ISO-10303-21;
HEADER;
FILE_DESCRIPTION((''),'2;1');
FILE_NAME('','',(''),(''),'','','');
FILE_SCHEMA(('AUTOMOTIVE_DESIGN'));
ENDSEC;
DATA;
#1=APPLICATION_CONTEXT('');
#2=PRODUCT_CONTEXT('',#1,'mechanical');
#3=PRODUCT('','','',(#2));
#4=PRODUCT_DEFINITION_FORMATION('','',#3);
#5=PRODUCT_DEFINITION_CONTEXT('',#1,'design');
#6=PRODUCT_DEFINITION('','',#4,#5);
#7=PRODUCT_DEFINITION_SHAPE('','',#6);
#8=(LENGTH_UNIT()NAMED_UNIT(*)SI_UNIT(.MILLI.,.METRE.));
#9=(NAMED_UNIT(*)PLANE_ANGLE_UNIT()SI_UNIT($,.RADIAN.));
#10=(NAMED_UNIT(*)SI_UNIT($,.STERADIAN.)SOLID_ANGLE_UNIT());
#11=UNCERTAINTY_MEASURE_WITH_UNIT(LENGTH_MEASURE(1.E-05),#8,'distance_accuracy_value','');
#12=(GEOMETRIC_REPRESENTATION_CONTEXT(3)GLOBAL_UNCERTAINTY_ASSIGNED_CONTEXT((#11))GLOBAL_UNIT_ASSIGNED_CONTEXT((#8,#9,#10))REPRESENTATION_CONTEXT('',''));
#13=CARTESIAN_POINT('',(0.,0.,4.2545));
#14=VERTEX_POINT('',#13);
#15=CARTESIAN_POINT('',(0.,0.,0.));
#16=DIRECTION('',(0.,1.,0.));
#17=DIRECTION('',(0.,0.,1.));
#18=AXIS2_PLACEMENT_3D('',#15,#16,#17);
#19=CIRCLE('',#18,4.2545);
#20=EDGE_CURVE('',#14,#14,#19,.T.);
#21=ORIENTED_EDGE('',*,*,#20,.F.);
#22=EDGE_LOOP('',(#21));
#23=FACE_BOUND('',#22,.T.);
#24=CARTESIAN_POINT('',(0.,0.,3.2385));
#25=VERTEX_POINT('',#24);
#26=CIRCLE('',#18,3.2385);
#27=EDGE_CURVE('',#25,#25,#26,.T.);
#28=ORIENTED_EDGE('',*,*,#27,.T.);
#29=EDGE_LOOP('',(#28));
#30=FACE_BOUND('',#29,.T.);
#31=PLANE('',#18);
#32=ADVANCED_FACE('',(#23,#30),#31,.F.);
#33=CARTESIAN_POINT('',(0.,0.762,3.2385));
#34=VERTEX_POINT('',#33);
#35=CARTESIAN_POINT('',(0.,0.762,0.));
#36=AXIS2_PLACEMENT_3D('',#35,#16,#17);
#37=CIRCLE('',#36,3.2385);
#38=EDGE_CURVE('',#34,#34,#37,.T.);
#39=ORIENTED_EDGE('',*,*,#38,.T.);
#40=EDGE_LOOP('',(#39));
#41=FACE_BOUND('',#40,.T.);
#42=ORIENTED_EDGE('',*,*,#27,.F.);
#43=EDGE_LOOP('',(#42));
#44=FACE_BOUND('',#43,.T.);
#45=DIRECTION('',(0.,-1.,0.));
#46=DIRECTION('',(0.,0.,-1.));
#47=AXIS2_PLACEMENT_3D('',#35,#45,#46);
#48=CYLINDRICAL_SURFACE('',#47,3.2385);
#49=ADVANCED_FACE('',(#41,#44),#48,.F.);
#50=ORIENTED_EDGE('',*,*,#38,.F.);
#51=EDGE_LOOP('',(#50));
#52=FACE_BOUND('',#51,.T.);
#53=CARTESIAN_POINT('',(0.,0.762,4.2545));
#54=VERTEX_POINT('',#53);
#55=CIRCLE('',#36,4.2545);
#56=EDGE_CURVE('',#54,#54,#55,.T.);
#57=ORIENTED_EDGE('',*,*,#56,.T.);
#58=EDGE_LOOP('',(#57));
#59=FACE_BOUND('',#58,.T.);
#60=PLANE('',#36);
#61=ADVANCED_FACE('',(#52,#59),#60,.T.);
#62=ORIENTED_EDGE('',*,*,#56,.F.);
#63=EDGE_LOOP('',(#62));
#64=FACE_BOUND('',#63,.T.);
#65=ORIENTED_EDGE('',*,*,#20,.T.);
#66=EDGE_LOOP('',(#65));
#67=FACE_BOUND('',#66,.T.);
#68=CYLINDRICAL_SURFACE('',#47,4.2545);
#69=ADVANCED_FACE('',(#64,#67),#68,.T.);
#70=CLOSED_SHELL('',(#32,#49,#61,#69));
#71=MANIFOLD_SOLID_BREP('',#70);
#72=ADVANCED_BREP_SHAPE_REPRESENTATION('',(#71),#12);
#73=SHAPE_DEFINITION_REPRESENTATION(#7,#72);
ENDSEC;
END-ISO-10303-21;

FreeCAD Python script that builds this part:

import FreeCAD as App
import Part
import Sketcher

V = App.Vector
Q = App.Units.Quantity

doc = App.newDocument("Part")
body = doc.addObject("PartDesign::Body", "Body")

# Sketch on XZ plane
sketch1 = doc.addObject("Sketcher::SketchObject", "Sketch")
body.addObject(sketch1)
sketch1.AttachmentSupport = (doc.XZ_Plane, [""])
sketch1.MapMode = "FlatFace"
sketch1.addGeometry(Part.Circle(V(0, 0, 0), V(0, 0, 1), 4.3), False)
sketch1.addGeometry(Part.Circle(V(0, 0, 0), V(0, 0, 1), 3.2), False)
sketch1.addConstraint(Sketcher.Constraint("Coincident", 0, 3, -1, 1))
sketch1.addConstraint(Sketcher.Constraint("Coincident", 1, 3, -1, 1))
sketch1.addConstraint(Sketcher.Constraint("Diameter", 0, Q("0.335 in")))
sketch1.addConstraint(Sketcher.Constraint("Diameter", 1, Q("0.255 in")))
pad1 = doc.addObject("PartDesign::Pad", "Pad")
body.addObject(pad1)
pad1.Profile = sketch1
pad1.Length = Q("0.03 in")
pad1.Reversed = True

doc.recompute()
